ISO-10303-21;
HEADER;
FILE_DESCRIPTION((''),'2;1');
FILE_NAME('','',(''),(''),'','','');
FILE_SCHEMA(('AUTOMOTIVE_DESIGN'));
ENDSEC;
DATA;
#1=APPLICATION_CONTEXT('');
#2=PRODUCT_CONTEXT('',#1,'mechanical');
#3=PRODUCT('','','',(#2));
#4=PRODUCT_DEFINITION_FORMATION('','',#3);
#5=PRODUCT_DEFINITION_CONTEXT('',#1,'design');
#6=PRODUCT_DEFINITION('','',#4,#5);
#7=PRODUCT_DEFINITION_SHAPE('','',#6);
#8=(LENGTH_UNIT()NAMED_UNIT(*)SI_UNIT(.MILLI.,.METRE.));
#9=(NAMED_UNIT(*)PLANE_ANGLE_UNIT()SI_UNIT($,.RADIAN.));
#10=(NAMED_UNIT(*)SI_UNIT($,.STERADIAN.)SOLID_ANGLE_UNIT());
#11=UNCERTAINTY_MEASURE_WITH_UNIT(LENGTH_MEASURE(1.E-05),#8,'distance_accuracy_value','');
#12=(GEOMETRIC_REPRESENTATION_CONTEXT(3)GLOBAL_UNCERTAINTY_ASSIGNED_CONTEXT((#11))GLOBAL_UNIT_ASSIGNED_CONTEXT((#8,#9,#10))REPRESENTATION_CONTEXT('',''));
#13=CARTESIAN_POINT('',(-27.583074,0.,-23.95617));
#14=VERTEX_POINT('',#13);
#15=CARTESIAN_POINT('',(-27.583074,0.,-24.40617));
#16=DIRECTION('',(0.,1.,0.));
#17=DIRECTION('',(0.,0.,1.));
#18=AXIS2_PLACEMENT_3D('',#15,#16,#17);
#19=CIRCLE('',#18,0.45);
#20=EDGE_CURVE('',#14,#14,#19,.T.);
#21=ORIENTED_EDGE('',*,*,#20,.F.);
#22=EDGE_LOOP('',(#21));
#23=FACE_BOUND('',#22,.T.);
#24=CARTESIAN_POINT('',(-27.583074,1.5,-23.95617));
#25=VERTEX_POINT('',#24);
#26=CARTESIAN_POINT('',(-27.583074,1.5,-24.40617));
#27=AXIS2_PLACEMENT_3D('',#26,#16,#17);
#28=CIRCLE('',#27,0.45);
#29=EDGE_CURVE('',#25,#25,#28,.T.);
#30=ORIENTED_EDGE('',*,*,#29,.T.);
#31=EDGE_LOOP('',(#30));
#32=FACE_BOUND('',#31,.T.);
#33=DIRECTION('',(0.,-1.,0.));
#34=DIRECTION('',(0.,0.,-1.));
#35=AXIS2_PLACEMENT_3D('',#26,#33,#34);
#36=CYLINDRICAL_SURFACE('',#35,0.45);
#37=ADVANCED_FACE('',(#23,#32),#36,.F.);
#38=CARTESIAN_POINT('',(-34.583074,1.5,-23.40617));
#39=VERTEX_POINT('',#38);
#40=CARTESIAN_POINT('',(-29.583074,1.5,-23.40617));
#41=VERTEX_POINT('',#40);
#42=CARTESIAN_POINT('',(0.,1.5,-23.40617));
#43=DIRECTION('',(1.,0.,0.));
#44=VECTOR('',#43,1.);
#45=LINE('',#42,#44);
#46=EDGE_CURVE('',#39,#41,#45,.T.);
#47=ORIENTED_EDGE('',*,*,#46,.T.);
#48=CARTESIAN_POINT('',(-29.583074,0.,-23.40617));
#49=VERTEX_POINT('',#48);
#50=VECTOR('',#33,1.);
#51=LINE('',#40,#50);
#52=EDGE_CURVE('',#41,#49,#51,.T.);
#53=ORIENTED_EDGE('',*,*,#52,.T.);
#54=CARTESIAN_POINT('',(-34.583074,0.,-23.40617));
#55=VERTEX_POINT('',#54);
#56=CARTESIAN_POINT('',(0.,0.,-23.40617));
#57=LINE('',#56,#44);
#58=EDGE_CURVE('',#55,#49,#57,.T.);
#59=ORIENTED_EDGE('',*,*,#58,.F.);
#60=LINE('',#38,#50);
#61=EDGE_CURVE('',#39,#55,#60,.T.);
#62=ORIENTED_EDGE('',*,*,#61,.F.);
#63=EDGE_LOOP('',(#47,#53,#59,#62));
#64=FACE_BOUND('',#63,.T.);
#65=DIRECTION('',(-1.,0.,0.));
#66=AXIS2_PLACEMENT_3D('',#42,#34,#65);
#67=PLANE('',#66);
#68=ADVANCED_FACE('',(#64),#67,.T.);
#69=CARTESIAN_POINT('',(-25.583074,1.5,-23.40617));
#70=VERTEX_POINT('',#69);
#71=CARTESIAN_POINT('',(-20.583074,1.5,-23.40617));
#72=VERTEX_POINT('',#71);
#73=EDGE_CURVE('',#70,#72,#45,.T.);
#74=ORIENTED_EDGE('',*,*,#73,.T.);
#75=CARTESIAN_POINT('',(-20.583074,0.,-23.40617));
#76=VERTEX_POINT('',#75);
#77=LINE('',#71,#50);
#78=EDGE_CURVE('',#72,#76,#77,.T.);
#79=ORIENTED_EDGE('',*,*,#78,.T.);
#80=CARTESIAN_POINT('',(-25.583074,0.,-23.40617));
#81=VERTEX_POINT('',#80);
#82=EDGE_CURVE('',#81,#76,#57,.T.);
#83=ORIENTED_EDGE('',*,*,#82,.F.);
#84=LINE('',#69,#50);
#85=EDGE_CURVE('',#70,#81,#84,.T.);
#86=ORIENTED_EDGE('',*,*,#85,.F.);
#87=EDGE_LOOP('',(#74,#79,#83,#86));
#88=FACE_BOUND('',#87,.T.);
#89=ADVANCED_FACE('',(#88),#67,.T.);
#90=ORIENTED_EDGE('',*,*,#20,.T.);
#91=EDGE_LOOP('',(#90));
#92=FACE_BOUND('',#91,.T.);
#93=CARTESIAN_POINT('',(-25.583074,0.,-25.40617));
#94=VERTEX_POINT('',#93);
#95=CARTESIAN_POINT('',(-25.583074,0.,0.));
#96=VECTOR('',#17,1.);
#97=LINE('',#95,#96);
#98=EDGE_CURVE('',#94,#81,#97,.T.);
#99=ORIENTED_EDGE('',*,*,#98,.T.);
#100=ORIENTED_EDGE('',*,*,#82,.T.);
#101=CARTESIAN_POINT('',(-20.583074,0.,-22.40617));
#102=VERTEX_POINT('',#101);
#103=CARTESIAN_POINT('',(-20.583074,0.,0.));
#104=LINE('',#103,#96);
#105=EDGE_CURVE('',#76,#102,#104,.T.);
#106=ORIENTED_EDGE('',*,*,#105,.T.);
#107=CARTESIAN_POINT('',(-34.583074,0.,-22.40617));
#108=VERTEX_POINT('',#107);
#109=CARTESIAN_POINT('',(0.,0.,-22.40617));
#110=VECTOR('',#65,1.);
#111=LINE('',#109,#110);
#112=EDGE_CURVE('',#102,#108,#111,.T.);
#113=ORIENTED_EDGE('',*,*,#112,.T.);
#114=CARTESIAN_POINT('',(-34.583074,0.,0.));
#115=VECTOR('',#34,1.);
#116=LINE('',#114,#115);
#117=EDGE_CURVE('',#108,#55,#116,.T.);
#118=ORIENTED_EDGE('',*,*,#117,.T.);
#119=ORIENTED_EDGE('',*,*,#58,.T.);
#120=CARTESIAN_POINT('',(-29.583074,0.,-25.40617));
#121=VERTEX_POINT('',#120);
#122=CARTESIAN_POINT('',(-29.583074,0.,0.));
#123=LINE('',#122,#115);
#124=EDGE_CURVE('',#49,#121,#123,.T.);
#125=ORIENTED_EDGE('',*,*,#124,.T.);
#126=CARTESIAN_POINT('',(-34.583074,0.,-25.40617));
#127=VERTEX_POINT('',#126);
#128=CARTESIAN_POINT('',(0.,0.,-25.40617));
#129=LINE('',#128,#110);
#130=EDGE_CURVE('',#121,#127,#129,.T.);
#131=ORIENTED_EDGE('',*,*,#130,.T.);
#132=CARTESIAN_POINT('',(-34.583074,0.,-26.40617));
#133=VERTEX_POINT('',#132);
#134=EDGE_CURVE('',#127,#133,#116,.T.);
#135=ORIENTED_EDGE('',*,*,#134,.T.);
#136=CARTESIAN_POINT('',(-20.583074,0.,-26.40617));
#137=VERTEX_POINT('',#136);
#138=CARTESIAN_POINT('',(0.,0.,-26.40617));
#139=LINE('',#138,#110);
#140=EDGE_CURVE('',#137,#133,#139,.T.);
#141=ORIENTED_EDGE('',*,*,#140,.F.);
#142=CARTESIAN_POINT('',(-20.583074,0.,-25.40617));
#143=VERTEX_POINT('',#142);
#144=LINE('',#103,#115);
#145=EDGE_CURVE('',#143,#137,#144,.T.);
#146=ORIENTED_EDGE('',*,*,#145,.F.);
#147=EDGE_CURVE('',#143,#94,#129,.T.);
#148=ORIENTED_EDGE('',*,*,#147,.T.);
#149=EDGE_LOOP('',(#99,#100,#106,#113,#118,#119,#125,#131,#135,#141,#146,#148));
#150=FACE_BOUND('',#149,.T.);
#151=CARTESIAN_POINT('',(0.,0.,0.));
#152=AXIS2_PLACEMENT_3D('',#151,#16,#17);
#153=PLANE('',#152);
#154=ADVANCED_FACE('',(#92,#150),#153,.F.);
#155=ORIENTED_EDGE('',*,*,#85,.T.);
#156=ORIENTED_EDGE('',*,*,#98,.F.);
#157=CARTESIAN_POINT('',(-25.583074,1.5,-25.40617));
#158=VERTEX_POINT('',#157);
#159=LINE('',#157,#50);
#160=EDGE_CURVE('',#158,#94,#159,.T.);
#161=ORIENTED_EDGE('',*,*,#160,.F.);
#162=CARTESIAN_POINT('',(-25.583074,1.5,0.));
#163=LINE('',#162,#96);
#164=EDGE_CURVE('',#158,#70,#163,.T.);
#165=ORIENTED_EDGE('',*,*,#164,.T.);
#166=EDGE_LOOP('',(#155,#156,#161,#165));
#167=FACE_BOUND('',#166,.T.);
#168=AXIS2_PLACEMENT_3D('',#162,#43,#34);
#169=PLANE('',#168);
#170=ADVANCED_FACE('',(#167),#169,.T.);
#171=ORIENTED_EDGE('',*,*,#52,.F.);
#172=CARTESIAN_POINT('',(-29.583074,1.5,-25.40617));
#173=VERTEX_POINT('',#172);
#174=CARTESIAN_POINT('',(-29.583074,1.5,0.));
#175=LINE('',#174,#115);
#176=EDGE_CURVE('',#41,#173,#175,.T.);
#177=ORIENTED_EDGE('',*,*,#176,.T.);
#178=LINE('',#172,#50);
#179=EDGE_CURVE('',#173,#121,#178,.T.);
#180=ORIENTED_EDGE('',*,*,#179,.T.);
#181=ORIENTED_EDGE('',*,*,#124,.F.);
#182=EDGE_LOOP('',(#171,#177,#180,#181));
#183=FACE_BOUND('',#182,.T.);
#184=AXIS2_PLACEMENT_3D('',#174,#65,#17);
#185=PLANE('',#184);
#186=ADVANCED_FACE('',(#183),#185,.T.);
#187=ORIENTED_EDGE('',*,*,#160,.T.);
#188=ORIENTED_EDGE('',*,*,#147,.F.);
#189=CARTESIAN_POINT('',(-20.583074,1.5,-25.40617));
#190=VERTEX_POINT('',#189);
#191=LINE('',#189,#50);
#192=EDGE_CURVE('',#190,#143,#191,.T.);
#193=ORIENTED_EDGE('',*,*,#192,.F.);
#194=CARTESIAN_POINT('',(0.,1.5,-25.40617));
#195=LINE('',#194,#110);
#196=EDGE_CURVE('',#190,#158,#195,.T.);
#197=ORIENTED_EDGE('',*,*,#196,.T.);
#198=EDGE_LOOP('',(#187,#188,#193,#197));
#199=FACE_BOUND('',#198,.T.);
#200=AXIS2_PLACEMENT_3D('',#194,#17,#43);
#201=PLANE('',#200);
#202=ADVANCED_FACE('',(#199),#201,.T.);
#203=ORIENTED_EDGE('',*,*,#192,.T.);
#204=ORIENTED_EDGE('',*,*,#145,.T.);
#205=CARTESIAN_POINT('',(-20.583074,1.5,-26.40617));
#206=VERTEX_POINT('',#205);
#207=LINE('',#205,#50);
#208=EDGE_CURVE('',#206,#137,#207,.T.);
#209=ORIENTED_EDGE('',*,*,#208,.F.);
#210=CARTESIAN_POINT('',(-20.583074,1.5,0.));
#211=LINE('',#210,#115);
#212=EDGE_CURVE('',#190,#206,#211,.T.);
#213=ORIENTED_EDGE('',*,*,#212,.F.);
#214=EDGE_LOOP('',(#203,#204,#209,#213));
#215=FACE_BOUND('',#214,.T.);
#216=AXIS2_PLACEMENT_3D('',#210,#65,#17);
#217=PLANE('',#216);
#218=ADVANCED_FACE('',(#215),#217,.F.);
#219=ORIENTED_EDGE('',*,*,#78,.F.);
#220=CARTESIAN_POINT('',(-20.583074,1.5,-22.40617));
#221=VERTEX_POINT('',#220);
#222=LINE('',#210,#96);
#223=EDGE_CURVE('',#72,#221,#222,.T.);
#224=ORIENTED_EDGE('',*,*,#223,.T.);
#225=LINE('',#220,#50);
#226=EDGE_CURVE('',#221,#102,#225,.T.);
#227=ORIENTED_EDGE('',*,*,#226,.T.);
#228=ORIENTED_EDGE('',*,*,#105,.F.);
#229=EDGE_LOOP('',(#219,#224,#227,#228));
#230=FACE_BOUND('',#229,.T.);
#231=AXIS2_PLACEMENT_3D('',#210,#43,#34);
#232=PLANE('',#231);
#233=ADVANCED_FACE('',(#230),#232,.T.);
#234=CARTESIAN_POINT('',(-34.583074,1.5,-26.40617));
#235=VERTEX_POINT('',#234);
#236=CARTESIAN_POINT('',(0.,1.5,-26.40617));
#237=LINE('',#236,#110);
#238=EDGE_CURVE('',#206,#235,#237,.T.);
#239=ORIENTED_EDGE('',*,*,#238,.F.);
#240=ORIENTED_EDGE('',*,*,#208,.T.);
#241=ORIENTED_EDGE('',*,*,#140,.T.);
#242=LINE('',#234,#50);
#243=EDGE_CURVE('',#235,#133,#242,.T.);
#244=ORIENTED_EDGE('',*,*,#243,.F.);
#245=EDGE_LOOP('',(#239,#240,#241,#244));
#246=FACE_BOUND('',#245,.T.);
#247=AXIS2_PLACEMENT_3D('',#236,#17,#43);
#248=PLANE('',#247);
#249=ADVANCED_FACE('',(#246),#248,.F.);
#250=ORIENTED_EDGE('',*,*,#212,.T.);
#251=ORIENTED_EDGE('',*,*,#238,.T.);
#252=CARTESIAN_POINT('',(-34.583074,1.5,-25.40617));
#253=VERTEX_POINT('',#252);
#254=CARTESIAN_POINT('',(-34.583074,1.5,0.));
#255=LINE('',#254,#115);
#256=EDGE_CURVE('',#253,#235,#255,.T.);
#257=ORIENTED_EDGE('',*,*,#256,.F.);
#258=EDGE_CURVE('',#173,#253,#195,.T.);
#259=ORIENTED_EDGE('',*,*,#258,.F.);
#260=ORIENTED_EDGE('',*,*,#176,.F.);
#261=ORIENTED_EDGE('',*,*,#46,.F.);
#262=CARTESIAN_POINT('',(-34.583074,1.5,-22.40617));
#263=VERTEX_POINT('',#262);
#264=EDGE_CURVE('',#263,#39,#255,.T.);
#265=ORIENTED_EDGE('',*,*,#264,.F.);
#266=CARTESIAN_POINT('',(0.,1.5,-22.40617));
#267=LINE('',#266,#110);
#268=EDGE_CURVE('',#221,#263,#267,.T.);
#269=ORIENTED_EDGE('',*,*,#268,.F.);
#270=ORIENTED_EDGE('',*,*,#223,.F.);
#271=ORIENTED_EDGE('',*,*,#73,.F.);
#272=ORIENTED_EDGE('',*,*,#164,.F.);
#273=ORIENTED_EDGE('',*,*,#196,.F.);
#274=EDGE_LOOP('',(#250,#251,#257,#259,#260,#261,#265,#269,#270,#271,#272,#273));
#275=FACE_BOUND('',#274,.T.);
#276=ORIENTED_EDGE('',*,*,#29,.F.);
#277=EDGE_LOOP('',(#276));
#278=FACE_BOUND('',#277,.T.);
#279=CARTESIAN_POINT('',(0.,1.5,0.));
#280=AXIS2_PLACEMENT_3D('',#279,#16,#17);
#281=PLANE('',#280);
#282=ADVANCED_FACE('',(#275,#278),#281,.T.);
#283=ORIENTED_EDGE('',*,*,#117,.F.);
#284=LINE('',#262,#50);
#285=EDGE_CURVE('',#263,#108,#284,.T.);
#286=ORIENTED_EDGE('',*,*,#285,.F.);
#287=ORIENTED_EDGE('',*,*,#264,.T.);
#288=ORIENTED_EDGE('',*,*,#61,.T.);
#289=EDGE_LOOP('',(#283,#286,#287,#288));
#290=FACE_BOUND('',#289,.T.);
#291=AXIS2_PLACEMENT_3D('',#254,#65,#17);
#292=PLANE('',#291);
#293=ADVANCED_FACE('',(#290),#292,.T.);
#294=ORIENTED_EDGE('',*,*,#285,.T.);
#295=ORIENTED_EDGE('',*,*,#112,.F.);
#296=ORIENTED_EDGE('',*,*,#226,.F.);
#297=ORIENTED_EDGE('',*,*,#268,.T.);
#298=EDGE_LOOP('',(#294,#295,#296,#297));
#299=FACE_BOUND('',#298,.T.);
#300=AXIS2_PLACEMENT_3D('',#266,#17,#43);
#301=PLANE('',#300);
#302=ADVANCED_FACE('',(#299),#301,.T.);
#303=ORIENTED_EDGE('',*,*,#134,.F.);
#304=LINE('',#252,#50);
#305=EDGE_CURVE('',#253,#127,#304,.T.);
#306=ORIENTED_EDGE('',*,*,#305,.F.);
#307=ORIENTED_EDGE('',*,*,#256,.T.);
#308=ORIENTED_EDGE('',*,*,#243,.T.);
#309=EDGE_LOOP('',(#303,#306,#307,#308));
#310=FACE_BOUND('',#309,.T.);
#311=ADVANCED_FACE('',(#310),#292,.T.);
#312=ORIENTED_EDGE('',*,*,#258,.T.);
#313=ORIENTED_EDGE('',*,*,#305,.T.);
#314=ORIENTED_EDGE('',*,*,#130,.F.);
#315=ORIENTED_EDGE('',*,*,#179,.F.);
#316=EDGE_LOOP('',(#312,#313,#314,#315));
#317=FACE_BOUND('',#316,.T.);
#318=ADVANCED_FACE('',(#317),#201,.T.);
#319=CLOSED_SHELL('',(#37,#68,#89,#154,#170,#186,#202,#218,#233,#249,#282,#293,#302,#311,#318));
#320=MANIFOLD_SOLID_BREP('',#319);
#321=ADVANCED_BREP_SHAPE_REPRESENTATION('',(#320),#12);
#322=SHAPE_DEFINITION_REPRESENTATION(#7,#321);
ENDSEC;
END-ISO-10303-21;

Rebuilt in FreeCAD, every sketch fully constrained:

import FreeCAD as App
import Part
import Sketcher
Q = App.Units.Quantity

doc = App.newDocument("Part")
body = doc.addObject("PartDesign::Body", "Body")

# Sketch on XZ plane
sketch1 = doc.addObject("Sketcher::SketchObject", "Sketch")
body.addObject(sketch1)
sketch1.AttachmentSupport = (doc.XZ_Plane, [""])
sketch1.MapMode = "FlatFace"
sketch1.addGeometry(Part.LineSegment(App.Vector(-20.58, -25.41, 0), App.Vector(-20.58, -26.41, 0)), False)
sketch1.addGeometry(Part.LineSegment(App.Vector(-20.58, -26.41, 0), App.Vector(-34.58, -26.41, 0)), False)
sketch1.addGeometry(Part.LineSegment(App.Vector(-34.58, -26.41, 0), App.Vector(-34.58, -25.41, 0)), False)
sketch1.addGeometry(Part.LineSegment(App.Vector(-34.58, -25.41, 0), App.Vector(-29.58, -25.41, 0)), False)
sketch1.addGeometry(Part.LineSegment(App.Vector(-29.58, -25.41, 0), App.Vector(-29.58, -23.41, 0)), False)
sketch1.addGeometry(Part.LineSegment(App.Vector(-29.58, -23.41, 0), App.Vector(-34.58, -23.41, 0)), False)
sketch1.addGeometry(Part.LineSegment(App.Vector(-34.58, -23.41, 0), App.Vector(-34.58, -22.41, 0)), False)
sketch1.addGeometry(Part.LineSegment(App.Vector(-34.58, -22.41, 0), App.Vector(-20.58, -22.41, 0)), False)
sketch1.addGeometry(Part.LineSegment(App.Vector(-20.58, -22.41, 0), App.Vector(-20.58, -23.41, 0)), False)
sketch1.addGeometry(Part.LineSegment(App.Vector(-20.58, -23.41, 0), App.Vector(-25.58, -23.41, 0)), False)
sketch1.addGeometry(Part.LineSegment(App.Vector(-25.58, -23.41, 0), App.Vector(-25.58, -25.41, 0)), False)
sketch1.addGeometry(Part.LineSegment(App.Vector(-25.58, -25.41, 0), App.Vector(-20.58, -25.41, 0)), False)
sketch1.addGeometry(Part.Circle(App.Vector(-27.58, -24.41, 0), App.Vector(0, 0, 1), 0.45), False)
sketch1.addConstraint(Sketcher.Constraint("Coincident", 0, 2, 1, 1))
sketch1.addConstraint(Sketcher.Constraint("Coincident", 1, 2, 2, 1))
sketch1.addConstraint(Sketcher.Constraint("Coincident", 2, 2, 3, 1))
sketch1.addConstraint(Sketcher.Constraint("Coincident", 3, 2, 4, 1))
sketch1.addConstraint(Sketcher.Constraint("Coincident", 4, 2, 5, 1))
sketch1.addConstraint(Sketcher.Constraint("Coincident", 5, 2, 6, 1))
sketch1.addConstraint(Sketcher.Constraint("Coincident", 6, 2, 7, 1))
sketch1.addConstraint(Sketcher.Constraint("Coincident", 7, 2, 8, 1))
sketch1.addConstraint(Sketcher.Constraint("Coincident", 8, 2, 9, 1))
sketch1.addConstraint(Sketcher.Constraint("Coincident", 9, 2, 10, 1))
sketch1.addConstraint(Sketcher.Constraint("Coincident", 10, 2, 11, 1))
sketch1.addConstraint(Sketcher.Constraint("Coincident", 11, 2, 0, 1))
sketch1.addConstraint(Sketcher.Constraint("Vertical", 0))
sketch1.addConstraint(Sketcher.Constraint("Horizontal", 1))
sketch1.addConstraint(Sketcher.Constraint("Vertical", 2))
sketch1.addConstraint(Sketcher.Constraint("Horizontal", 3))
sketch1.addConstraint(Sketcher.Constraint("Vertical", 4))
sketch1.addConstraint(Sketcher.Constraint("Horizontal", 5))
sketch1.addConstraint(Sketcher.Constraint("Vertical", 6))
sketch1.addConstraint(Sketcher.Constraint("Horizontal", 7))
sketch1.addConstraint(Sketcher.Constraint("Vertical", 8))
sketch1.addConstraint(Sketcher.Constraint("Horizontal", 9))
sketch1.addConstraint(Sketcher.Constraint("Vertical", 10))
sketch1.addConstraint(Sketcher.Constraint("Horizontal", 11))
sketch1.addConstraint(Sketcher.Constraint("Horizontal", 5, 2, 8, 2))
sketch1.addConstraint(Sketcher.Constraint("Horizontal", 3, 2, 10, 2))
sketch1.addConstraint(Sketcher.Constraint("Vertical", 2, 2, 5, 2))
sketch1.addConstraint(Sketcher.Constraint("Vertical", 0, 2, 7, 2))
sketch1.addConstraint(Sketcher.Constraint("Equal", 5, 9))
sketch1.addConstraint(Sketcher.Constraint("Equal", 2, 6))
sketch1.addConstraint(Sketcher.Constraint("Diameter", 12, Q("0.9 mm")))
sketch1.addConstraint(Sketcher.Constraint("DistanceX", 1, 2, 1, 1, Q("14 mm")))
sketch1.addConstraint(Sketcher.Constraint("DistanceX", 3, 1, 3, 2, Q("5 mm")))
sketch1.addConstraint(Sketcher.Constraint("DistanceY", 0, 2, 0, 1, Q("1 mm")))
sketch1.addConstraint(Sketcher.Constraint("DistanceY", 4, 1, 4, 2, Q("2 mm")))
sketch1.addConstraint(Sketcher.Constraint("DistanceX", 12, 3, 0, 2, Q("7 mm")))
sketch1.addConstraint(Sketcher.Constraint("DistanceY", 0, 2, 12, 3, Q("2 mm")))
sketch1.addConstraint(Sketcher.Constraint("DistanceY", 12, 3, -1, 1, Q("24.40617 mm")))
sketch1.addConstraint(Sketcher.Constraint("DistanceX", 12, 3, -1, 1, Q("27.583074 mm")))
pad1 = doc.addObject("PartDesign::Pad", "Pad")
body.addObject(pad1)
pad1.Profile = sketch1
pad1.Length = 1.5
pad1.Reversed = True

doc.recompute()
